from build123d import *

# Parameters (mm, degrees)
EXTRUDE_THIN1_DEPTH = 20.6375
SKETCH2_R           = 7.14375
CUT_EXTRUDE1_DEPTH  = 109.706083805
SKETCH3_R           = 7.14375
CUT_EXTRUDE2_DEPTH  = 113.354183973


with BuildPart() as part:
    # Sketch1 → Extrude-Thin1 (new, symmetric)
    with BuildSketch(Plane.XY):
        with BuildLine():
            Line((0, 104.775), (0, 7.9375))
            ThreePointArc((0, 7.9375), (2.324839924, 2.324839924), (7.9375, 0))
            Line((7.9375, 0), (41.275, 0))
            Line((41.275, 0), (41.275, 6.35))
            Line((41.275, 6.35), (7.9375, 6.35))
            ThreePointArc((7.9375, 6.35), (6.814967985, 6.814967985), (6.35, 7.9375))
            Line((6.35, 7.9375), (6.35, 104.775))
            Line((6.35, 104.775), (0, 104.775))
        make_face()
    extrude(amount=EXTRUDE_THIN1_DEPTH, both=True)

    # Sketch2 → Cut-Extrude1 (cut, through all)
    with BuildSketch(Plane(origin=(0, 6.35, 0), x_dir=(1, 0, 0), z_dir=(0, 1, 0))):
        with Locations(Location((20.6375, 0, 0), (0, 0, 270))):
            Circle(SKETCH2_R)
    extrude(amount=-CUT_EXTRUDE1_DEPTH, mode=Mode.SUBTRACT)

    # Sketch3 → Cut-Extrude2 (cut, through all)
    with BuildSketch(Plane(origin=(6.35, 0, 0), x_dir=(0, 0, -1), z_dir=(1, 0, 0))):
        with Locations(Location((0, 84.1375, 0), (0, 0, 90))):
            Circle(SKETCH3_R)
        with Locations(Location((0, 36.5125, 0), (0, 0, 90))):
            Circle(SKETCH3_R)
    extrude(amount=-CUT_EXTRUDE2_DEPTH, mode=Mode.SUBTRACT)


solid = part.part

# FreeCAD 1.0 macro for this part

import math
import FreeCAD as App
import Part
import Sketcher
from FreeCAD import Vector
Q = App.Units.Quantity

doc = App.newDocument("Part")
body = doc.addObject("PartDesign::Body", "Body")

# Sketch on XY plane
sketch1 = doc.addObject("Sketcher::SketchObject", "Sketch")
body.addObject(sketch1)
sketch1.AttachmentSupport = (doc.XY_Plane, [""])
sketch1.MapMode = "FlatFace"
sketch1.addGeometry([
    Part.LineSegment(Vector(0, 104.8, 0), Vector(0, 7.9, 0)),  # 0
    Part.ArcOfCircle(Part.Circle(Vector(7.9, 7.9, 0), Vector(0, 0, 1), 7.9), math.radians(180), math.radians(270)),  # 1
    Part.LineSegment(Vector(7.9, 0, 0), Vector(41.3, 0, 0)),  # 2
    Part.LineSegment(Vector(41.3, 0, 0), Vector(41.3, 6.3, 0)),  # 3
    Part.LineSegment(Vector(41.3, 6.3, 0), Vector(7.9, 6.3, 0)),  # 4
    Part.ArcOfCircle(Part.Circle(Vector(7.9, 7.9, 0), Vector(0, 0, 1), 1.6), math.radians(180), math.radians(270)),  # 5
    Part.LineSegment(Vector(6.3, 7.9, 0), Vector(6.3, 104.8, 0)),  # 6
    Part.LineSegment(Vector(6.3, 104.8, 0), Vector(0, 104.8, 0)),  # 7
], False)
sketch1.addConstraint([
    Sketcher.Constraint("Tangent", 0, 2, 1, 1),
    Sketcher.Constraint("Tangent", 1, 2, 2, 1),
    Sketcher.Constraint("Coincident", 2, 2, 3, 1),
    Sketcher.Constraint("Coincident", 3, 2, 4, 1),
    Sketcher.Constraint("Tangent", 4, 2, 5, 2),
    Sketcher.Constraint("Tangent", 5, 1, 6, 1),
    Sketcher.Constraint("Coincident", 6, 2, 7, 1),
    Sketcher.Constraint("Coincident", 7, 2, 0, 1),
    Sketcher.Constraint("Vertical", 0),
    Sketcher.Constraint("Horizontal", 2),
    Sketcher.Constraint("Vertical", 3),
    Sketcher.Constraint("Horizontal", 4),
    Sketcher.Constraint("Vertical", 6),
    Sketcher.Constraint("Horizontal", 7),
    Sketcher.Constraint("Coincident", 5, 3, 1, 3),
    Sketcher.Constraint("PointOnObject", 0, 2, -2),
    Sketcher.Constraint("PointOnObject", 1, 2, -1),
    Sketcher.Constraint("Radius", 1, Q("0.3125 in")),
    Sketcher.Constraint("Radius", 5, Q("0.0625 in")),
    Sketcher.Constraint("DistanceX", 2, 1, 2, 2, Q("1.3125 in")),
    Sketcher.Constraint("DistanceY", 0, 2, 0, 1, Q("3.8125 in")),
])
pad1 = doc.addObject("PartDesign::Pad", "Pad")
body.addObject(pad1)
pad1.Profile = sketch1
pad1.Length = Q("1.625 in")
pad1.Midplane = True

# Sketch on XZ plane
sketch2 = doc.addObject("Sketcher::SketchObject", "Sketch001")
body.addObject(sketch2)
sketch2.AttachmentSupport = (doc.XZ_Plane, [""])
sketch2.MapMode = "FlatFace"
sketch2.AttachmentOffset = App.Placement(Vector(0, 0, -0.25 * 25.4), App.Rotation())
sketch2.addGeometry(Part.Circle(Vector(21, 0, 0), Vector(0, 0, 1), 7), False)
sketch2.addConstraint([
    Sketcher.Constraint("PointOnObject", 0, 3, -1),
    Sketcher.Constraint("Diameter", 0, Q("0.5625 in")),
    Sketcher.Constraint("DistanceX", -1, 1, 0, 3, Q("0.8125 in")),
])
pocket1 = doc.addObject("PartDesign::Pocket", "Pocket")
body.addObject(pocket1)
pocket1.Profile = sketch2
pocket1.Type = "ThroughAll"
pocket1.Reversed = True

# Sketch on YZ plane
sketch3 = doc.addObject("Sketcher::SketchObject", "Sketch002")
body.addObject(sketch3)
sketch3.AttachmentSupport = (doc.YZ_Plane, [""])
sketch3.MapMode = "FlatFace"
sketch3.AttachmentOffset = App.Placement(Vector(0, 0, 0.25 * 25.4), App.Rotation())
sketch3.addGeometry([
    Part.Circle(Vector(84, 0, 0), Vector(0, 0, 1), 7),
    Part.Circle(Vector(37, 0, 0), Vector(0, 0, 1), 7),
], False)
sketch3.addConstraint([
    Sketcher.Constraint("Equal", 0, 1),
    Sketcher.Constraint("PointOnObject", 0, 3, -1),
    Sketcher.Constraint("PointOnObject", 1, 3, -1),
    Sketcher.Constraint("Diameter", 0, Q("0.5625 in")),
    Sketcher.Constraint("DistanceX", -1, 1, 0, 3, Q("3.3125 in")),
    Sketcher.Constraint("DistanceX", -1, 1, 1, 3, Q("1.4375 in")),
])
pocket2 = doc.addObject("PartDesign::Pocket", "Pocket001")
body.addObject(pocket2)
pocket2.Profile = sketch3
pocket2.Type = "ThroughAll"

doc.recompute()
